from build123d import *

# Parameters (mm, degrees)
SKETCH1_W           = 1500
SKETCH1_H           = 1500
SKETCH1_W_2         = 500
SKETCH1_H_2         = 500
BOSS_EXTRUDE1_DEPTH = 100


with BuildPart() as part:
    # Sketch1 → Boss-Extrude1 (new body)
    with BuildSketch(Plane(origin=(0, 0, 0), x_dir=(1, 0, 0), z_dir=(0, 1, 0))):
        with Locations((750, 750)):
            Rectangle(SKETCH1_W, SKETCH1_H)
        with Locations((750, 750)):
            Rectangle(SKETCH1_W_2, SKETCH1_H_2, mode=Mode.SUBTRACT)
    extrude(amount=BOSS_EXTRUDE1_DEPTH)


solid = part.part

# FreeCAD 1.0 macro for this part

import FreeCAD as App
import Part
import Sketcher
Q = App.Units.Quantity


def add_polygon(sketch, points):
    """Adds a closed chain of lines whose ends are joined by coincident constraints."""
    first, n = sketch.GeometryCount, len(points)
    for a, b in zip(points, points[1:] + points[:1]):
        sketch.addGeometry(Part.LineSegment(App.Vector(*a, 0), App.Vector(*b, 0)), False)
    for i in range(n):
        sketch.addConstraint(Sketcher.Constraint("Coincident", first + i, 2, first + (i + 1) % n, 1))

doc = App.newDocument("Part")
body = doc.addObject("PartDesign::Body", "Body")

# Sketch on XZ plane
sketch1 = doc.addObject("Sketcher::SketchObject", "Sketch")
body.addObject(sketch1)
sketch1.AttachmentSupport = (doc.XZ_Plane, [""])
sketch1.MapMode = "FlatFace"
add_polygon(sketch1, [(0, -1500), (0, 0), (1500, 0), (1500, -1500)])  # lines 0-3
add_polygon(sketch1, [(1000, -500), (500, -500), (500, -1000), (1000, -1000)])  # lines 4-7
sketch1.addConstraint(Sketcher.Constraint("Vertical", 0))
sketch1.addConstraint(Sketcher.Constraint("Horizontal", 1))
sketch1.addConstraint(Sketcher.Constraint("Vertical", 2))
sketch1.addConstraint(Sketcher.Constraint("Horizontal", 3))
sketch1.addConstraint(Sketcher.Constraint("Horizontal", 4))
sketch1.addConstraint(Sketcher.Constraint("Vertical", 5))
sketch1.addConstraint(Sketcher.Constraint("Horizontal", 6))
sketch1.addConstraint(Sketcher.Constraint("Vertical", 7))
sketch1.addConstraint(Sketcher.Constraint("Coincident", 0, 2, -1, 1))
sketch1.addConstraint(Sketcher.Constraint("Equal", 3, 0))
sketch1.addConstraint(Sketcher.Constraint("Equal", 6, 5))
sketch1.addConstraint(Sketcher.Constraint("DistanceX", 1, 1, 1, 2, Q("1500 mm")))
sketch1.addConstraint(Sketcher.Constraint("DistanceX", 4, 2, 4, 1, Q("500 mm")))
sketch1.addConstraint(Sketcher.Constraint("DistanceX", -1, 1, 4, 2, Q("500 mm")))
sketch1.addConstraint(Sketcher.Constraint("DistanceY", 4, 2, -1, 1, Q("500 mm")))
pad1 = doc.addObject("PartDesign::Pad", "Pad")
body.addObject(pad1)
pad1.Profile = sketch1
pad1.Length = 100
pad1.Reversed = True

doc.recompute()
